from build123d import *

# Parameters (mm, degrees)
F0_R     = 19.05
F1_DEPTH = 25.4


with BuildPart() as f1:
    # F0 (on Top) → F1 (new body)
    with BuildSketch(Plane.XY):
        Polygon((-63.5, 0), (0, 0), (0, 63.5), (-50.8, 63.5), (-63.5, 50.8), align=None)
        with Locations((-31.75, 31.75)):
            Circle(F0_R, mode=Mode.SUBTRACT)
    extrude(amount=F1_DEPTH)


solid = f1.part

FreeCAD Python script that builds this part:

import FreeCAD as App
import Part
import Sketcher
Q = App.Units.Quantity

doc = App.newDocument("Part")
body = doc.addObject("PartDesign::Body", "Body")

# Sketch on XY plane
sketch1 = body.newObject("Sketcher::SketchObject", "Sketch")
sketch1.AttachmentSupport = (doc.getObject("XY_Plane"), [""])
sketch1.MapMode = "FlatFace"
sketch1.addGeometry(Part.LineSegment(App.Vector(-63.5, 0, 0), App.Vector(0, 0, 0)), False)
sketch1.addGeometry(Part.LineSegment(App.Vector(0, 0, 0), App.Vector(0, 63.5, 0)), False)
sketch1.addGeometry(Part.LineSegment(App.Vector(0, 63.5, 0), App.Vector(-50.8, 63.5, 0)), False)
sketch1.addGeometry(Part.LineSegment(App.Vector(-50.8, 63.5, 0), App.Vector(-63.5, 50.8, 0)), False)
sketch1.addGeometry(Part.LineSegment(App.Vector(-63.5, 50.8, 0), App.Vector(-63.5, 0, 0)), False)
sketch1.addGeometry(Part.Circle(App.Vector(-31.75, 31.75, 0), App.Vector(0, 0, 1), 19.05), False)
sketch1.addConstraint(Sketcher.Constraint("Coincident", 0, 2, 1, 1))
sketch1.addConstraint(Sketcher.Constraint("Coincident", 1, 2, 2, 1))
sketch1.addConstraint(Sketcher.Constraint("Coincident", 2, 2, 3, 1))
sketch1.addConstraint(Sketcher.Constraint("Coincident", 3, 2, 4, 1))
sketch1.addConstraint(Sketcher.Constraint("Coincident", 4, 2, 0, 1))
sketch1.addConstraint(Sketcher.Constraint("Horizontal", 0))
sketch1.addConstraint(Sketcher.Constraint("Vertical", 1))
sketch1.addConstraint(Sketcher.Constraint("Horizontal", 2))
sketch1.addConstraint(Sketcher.Constraint("Vertical", 4))
sketch1.addConstraint(Sketcher.Constraint("Coincident", 0, 2, -1, 1))
sketch1.addConstraint(Sketcher.Constraint("Equal", 0, 1))
sketch1.addConstraint(Sketcher.Constraint("Equal", 2, 4))
sketch1.addConstraint(Sketcher.Constraint("Diameter", 5, Q("1.5 in")))
sketch1.addConstraint(Sketcher.Constraint("DistanceX", 2, 2, 2, 1, Q("2 in")))
sketch1.addConstraint(Sketcher.Constraint("DistanceX", 0, 1, 0, 2, Q("2.5 in")))
sketch1.addConstraint(Sketcher.Constraint("DistanceX", 5, 3, -1, 1, Q("1.25 in")))
sketch1.addConstraint(Sketcher.Constraint("DistanceY", -1, 1, 5, 3, Q("1.25 in")))
pad1 = body.newObject("PartDesign::Pad", "Pad")
pad1.Profile = sketch1
pad1.Length = Q("1 in")

doc.recompute()
